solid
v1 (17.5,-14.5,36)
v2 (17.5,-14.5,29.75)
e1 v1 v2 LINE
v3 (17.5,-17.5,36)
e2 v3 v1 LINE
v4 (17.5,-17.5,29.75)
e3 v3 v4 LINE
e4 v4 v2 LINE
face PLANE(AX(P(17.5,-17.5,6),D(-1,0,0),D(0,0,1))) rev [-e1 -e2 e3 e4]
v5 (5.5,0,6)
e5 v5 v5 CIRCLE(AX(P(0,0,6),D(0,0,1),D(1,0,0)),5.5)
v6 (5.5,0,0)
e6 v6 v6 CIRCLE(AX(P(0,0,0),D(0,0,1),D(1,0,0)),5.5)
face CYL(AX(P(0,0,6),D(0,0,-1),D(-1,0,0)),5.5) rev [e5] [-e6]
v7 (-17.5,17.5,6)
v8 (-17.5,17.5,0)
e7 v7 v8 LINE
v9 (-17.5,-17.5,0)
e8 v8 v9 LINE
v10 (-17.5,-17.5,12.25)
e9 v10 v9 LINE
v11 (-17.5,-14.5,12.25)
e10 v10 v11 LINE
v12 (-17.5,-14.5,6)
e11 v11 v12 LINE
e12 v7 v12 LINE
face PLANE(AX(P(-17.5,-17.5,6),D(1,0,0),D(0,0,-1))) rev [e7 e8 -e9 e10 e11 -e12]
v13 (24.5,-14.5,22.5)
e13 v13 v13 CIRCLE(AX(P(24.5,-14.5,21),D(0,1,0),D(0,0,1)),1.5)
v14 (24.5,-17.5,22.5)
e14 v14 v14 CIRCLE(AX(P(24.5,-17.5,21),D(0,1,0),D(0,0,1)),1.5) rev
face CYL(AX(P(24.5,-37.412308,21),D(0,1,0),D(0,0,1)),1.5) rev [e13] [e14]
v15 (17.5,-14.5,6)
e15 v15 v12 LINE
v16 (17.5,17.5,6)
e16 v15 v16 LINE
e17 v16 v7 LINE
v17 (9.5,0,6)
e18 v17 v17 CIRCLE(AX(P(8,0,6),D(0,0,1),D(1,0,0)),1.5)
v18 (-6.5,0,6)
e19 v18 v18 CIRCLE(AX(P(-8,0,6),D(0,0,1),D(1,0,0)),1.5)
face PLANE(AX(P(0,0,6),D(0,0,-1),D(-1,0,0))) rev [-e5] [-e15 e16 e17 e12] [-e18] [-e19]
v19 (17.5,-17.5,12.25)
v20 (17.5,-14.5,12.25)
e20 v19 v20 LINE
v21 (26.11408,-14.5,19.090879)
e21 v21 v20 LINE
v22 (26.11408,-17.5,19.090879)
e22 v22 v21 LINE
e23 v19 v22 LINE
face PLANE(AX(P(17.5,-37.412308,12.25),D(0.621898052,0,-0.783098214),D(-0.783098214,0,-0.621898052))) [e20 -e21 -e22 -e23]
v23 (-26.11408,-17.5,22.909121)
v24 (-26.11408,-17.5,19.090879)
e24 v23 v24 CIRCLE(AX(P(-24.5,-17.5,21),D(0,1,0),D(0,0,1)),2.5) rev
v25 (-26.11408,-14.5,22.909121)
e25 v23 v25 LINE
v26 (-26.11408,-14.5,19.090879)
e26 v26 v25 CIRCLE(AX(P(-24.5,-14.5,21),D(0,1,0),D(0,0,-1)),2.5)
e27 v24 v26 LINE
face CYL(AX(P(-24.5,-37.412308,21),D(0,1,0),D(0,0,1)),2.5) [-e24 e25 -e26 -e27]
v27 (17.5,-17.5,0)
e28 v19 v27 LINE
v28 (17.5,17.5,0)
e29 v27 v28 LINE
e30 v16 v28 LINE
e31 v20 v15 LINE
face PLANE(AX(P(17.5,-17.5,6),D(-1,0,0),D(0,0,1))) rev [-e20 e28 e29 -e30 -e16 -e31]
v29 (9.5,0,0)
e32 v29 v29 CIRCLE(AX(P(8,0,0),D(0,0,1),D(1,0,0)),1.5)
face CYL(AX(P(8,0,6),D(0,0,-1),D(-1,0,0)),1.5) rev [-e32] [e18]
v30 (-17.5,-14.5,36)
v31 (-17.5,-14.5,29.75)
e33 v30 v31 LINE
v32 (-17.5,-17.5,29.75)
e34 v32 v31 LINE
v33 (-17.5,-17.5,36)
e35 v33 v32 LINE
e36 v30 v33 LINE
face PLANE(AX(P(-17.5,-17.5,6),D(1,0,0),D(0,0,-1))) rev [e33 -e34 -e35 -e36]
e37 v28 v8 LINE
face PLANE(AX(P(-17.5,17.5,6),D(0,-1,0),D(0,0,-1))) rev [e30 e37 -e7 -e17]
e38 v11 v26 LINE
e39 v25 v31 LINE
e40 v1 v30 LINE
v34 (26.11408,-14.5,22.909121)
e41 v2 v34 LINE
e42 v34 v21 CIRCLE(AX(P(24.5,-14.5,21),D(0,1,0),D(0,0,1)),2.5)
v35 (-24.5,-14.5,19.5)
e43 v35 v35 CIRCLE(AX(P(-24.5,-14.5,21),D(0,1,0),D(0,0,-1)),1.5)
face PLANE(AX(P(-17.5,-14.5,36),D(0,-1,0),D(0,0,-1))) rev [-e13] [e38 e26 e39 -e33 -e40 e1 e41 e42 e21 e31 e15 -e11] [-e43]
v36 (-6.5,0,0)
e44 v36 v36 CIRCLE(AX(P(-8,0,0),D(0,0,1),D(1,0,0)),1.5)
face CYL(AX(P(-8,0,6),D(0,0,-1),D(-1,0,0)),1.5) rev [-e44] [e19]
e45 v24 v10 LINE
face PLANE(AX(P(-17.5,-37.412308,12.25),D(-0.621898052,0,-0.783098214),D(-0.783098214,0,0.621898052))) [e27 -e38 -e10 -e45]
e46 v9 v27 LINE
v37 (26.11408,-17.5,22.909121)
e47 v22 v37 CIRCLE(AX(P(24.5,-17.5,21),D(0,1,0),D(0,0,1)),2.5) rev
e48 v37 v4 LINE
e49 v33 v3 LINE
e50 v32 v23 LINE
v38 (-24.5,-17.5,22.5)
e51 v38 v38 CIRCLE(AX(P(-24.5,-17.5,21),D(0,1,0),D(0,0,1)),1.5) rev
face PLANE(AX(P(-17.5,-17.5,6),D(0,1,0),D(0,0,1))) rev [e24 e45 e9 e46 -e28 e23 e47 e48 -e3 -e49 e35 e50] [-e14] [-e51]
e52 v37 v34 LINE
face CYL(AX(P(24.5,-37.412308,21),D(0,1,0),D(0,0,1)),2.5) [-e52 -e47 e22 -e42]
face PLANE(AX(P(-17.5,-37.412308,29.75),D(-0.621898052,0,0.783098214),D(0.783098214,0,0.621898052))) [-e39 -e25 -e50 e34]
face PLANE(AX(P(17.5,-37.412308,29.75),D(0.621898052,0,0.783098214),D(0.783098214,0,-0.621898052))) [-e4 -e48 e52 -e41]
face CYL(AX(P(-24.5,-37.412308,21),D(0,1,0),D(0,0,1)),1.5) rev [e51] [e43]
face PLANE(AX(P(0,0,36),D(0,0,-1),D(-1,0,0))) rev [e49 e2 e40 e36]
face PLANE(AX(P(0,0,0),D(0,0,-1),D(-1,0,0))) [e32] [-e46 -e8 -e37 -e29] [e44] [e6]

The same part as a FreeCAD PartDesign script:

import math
import FreeCAD as App
import Part
import Sketcher
Q = App.Units.Quantity


def add_polygon(sketch, points):
    """Adds a closed chain of lines whose ends are joined by coincident constraints."""
    first, n = sketch.GeometryCount, len(points)
    for a, b in zip(points, points[1:] + points[:1]):
        sketch.addGeometry(Part.LineSegment(App.Vector(*a, 0), App.Vector(*b, 0)), False)
    for i in range(n):
        sketch.addConstraint(Sketcher.Constraint("Coincident", first + i, 2, first + (i + 1) % n, 1))

doc = App.newDocument("Part")
body = doc.addObject("PartDesign::Body", "Body")

# Sketch on XY plane
sketch1 = body.newObject("Sketcher::SketchObject", "Sketch")
sketch1.AttachmentSupport = (doc.getObject("XY_Plane"), [""])
sketch1.MapMode = "FlatFace"
add_polygon(sketch1, [(-17.5, 17.5), (-17.5, -17.5), (17.5, -17.5), (17.5, 17.5)])  # lines 0-3
sketch1.addGeometry(Part.Circle(App.Vector(-8, 0, 0), App.Vector(0, 0, 1), 1.5), False)  # 4
sketch1.addGeometry(Part.Circle(App.Vector(0, 0, 0), App.Vector(0, 0, 1), 5.5), False)  # 5
sketch1.addGeometry(Part.Circle(App.Vector(8, 0, 0), App.Vector(0, 0, 1), 1.5), False)  # 6
sketch1.addConstraint(Sketcher.Constraint("Vertical", 0))
sketch1.addConstraint(Sketcher.Constraint("Horizontal", 1))
sketch1.addConstraint(Sketcher.Constraint("Vertical", 2))
sketch1.addConstraint(Sketcher.Constraint("Horizontal", 3))
sketch1.addConstraint(Sketcher.Constraint("Coincident", 5, 3, -1, 1))
sketch1.addConstraint(Sketcher.Constraint("Equal", 4, 6))
sketch1.addConstraint(Sketcher.Constraint("Symmetric", 4, 3, 6, 3, -1, 1))
sketch1.addConstraint(Sketcher.Constraint("Symmetric", 0, 2, 2, 2, -1, 1))
sketch1.addConstraint(Sketcher.Constraint("PointOnObject", 4, 3, -1))
sketch1.addConstraint(Sketcher.Constraint("Equal", 3, 0))
sketch1.addConstraint(Sketcher.Constraint("Diameter", 4, Q("3 mm")))
sketch1.addConstraint(Sketcher.Constraint("Diameter", 5, Q("11 mm")))
sketch1.addConstraint(Sketcher.Constraint("DistanceX", 1, 1, 1, 2, Q("35 mm")))
sketch1.addConstraint(Sketcher.Constraint("DistanceX", 4, 3, -1, 1, Q("8 mm")))
pad1 = body.newObject("PartDesign::Pad", "Pad")
pad1.Profile = sketch1
pad1.Length = 6

# Sketch on XY plane
sketch2 = body.newObject("Sketcher::SketchObject", "Sketch001")
sketch2.AttachmentSupport = (doc.getObject("XY_Plane"), [""])
sketch2.MapMode = "FlatFace"
sketch2.AttachmentOffset = App.Placement(App.Vector(0, 0, 6), App.Rotation())
add_polygon(sketch2, [(-17.5, -14.5), (-17.5, -17.5), (17.5, -17.5), (17.5, -14.5)])  # lines 0-3
sketch2.addConstraint(Sketcher.Constraint("Vertical", 0))
sketch2.addConstraint(Sketcher.Constraint("Horizontal", 1))
sketch2.addConstraint(Sketcher.Constraint("Vertical", 2))
sketch2.addConstraint(Sketcher.Constraint("Horizontal", 3))
sketch2.addConstraint(Sketcher.Constraint("DistanceX", 1, 1, 1, 2, Q("35 mm")))
sketch2.addConstraint(Sketcher.Constraint("DistanceY", 0, 2, 0, 1, Q("3 mm")))
sketch2.addConstraint(Sketcher.Constraint("DistanceX", 0, 2, -1, 1, Q("17.5 mm")))
sketch2.addConstraint(Sketcher.Constraint("DistanceY", 0, 2, -1, 1, Q("17.5 mm")))
pad2 = body.newObject("PartDesign::Pad", "Pad001")
pad2.Profile = sketch2
pad2.Length = 30

# Sketch on XZ plane
sketch3 = body.newObject("Sketcher::SketchObject", "Sketch002")
sketch3.AttachmentSupport = (doc.getObject("XZ_Plane"), [""])
sketch3.MapMode = "FlatFace"
sketch3.AttachmentOffset = App.Placement(App.Vector(0, 0, 14.5), App.Rotation())
sketch3.addGeometry(Part.LineSegment(App.Vector(17.5, 12.2, 0), App.Vector(17.5, 29.8, 0)), False)
sketch3.addGeometry(Part.LineSegment(App.Vector(17.5, 29.8, 0), App.Vector(26.1, 22.9, 0)), False)
sketch3.addGeometry(Part.ArcOfCircle(Part.Circle(App.Vector(24.5, 21, 0), App.Vector(0, 0, 1), 2.5), math.radians(-50), math.radians(50)), False)
sketch3.addGeometry(Part.LineSegment(App.Vector(26.1, 19.1, 0), App.Vector(17.5, 12.2, 0)), False)
sketch3.addGeometry(Part.Circle(App.Vector(24.5, 21, 0), App.Vector(0, 0, 1), 1.5), False)
sketch3.addGeometry(Part.LineSegment(App.Vector(-17.5, 29.8, 0), App.Vector(-17.5, 12.2, 0)), False)
sketch3.addGeometry(Part.LineSegment(App.Vector(-17.5, 12.2, 0), App.Vector(-26.1, 19.1, 0)), False)
sketch3.addGeometry(Part.ArcOfCircle(Part.Circle(App.Vector(-24.5, 21, 0), App.Vector(0, 0, 1), 2.5), math.radians(130), math.radians(230)), False)
sketch3.addGeometry(Part.LineSegment(App.Vector(-26.1, 22.9, 0), App.Vector(-17.5, 29.8, 0)), False)
sketch3.addGeometry(Part.Circle(App.Vector(-24.5, 21, 0), App.Vector(0, 0, 1), 1.5), False)
sketch3.addConstraint(Sketcher.Constraint("Coincident", 0, 2, 1, 1))
sketch3.addConstraint(Sketcher.Constraint("Coincident", 1, 2, 2, 2))
sketch3.addConstraint(Sketcher.Constraint("Coincident", 2, 1, 3, 1))
sketch3.addConstraint(Sketcher.Constraint("Coincident", 3, 2, 0, 1))
sketch3.addConstraint(Sketcher.Constraint("Coincident", 5, 2, 6, 1))
sketch3.addConstraint(Sketcher.Constraint("Coincident", 6, 2, 7, 2))
sketch3.addConstraint(Sketcher.Constraint("Coincident", 7, 1, 8, 1))
sketch3.addConstraint(Sketcher.Constraint("Coincident", 8, 2, 5, 1))
sketch3.addConstraint(Sketcher.Constraint("Vertical", 0))
sketch3.addConstraint(Sketcher.Constraint("Vertical", 5))
sketch3.addConstraint(Sketcher.Constraint("Coincident", 4, 3, 2, 3))
sketch3.addConstraint(Sketcher.Constraint("Coincident", 9, 3, 7, 3))
sketch3.addConstraint(Sketcher.Constraint("Equal", 2, 7))
sketch3.addConstraint(Sketcher.Constraint("Equal", 4, 9))
sketch3.addConstraint(Sketcher.Constraint("Symmetric", 2, 3, 7, 3, -2))
sketch3.addConstraint(Sketcher.Constraint("Symmetric", 3, 2, 5, 2, -2))
sketch3.addConstraint(Sketcher.Constraint("Parallel", 1, 6))
sketch3.addConstraint(Sketcher.Constraint("Parallel", 3, 8))
sketch3.addConstraint(Sketcher.Constraint("Horizontal", 2, 1, 6, 2))
sketch3.addConstraint(Sketcher.Constraint("Horizontal", 1, 2, 7, 1))
sketch3.addConstraint(Sketcher.Constraint("Vertical", 1, 2, 2, 1))
sketch3.addConstraint(Sketcher.Constraint("Diameter", 4, Q("3 mm")))
sketch3.addConstraint(Sketcher.Constraint("Radius", 2, Q("2.5 mm")))
sketch3.addConstraint(Sketcher.Constraint("Distance", 1, Q("11 mm")))
sketch3.addConstraint(Sketcher.Constraint("DistanceY", 0, 1, 0, 2, Q("17.5 mm")))
sketch3.addConstraint(Sketcher.Constraint("DistanceY", -1, 1, 2, 3, Q("21 mm")))
sketch3.addConstraint(Sketcher.Constraint("DistanceX", 7, 3, 2, 3, Q("49 mm")))
sketch3.addConstraint(Sketcher.Constraint("DistanceX", 0, 2, 2, 3, Q("7 mm")))
pad3 = body.newObject("PartDesign::Pad", "Pad002")
pad3.Profile = sketch3
pad3.Length = 3

doc.recompute()
